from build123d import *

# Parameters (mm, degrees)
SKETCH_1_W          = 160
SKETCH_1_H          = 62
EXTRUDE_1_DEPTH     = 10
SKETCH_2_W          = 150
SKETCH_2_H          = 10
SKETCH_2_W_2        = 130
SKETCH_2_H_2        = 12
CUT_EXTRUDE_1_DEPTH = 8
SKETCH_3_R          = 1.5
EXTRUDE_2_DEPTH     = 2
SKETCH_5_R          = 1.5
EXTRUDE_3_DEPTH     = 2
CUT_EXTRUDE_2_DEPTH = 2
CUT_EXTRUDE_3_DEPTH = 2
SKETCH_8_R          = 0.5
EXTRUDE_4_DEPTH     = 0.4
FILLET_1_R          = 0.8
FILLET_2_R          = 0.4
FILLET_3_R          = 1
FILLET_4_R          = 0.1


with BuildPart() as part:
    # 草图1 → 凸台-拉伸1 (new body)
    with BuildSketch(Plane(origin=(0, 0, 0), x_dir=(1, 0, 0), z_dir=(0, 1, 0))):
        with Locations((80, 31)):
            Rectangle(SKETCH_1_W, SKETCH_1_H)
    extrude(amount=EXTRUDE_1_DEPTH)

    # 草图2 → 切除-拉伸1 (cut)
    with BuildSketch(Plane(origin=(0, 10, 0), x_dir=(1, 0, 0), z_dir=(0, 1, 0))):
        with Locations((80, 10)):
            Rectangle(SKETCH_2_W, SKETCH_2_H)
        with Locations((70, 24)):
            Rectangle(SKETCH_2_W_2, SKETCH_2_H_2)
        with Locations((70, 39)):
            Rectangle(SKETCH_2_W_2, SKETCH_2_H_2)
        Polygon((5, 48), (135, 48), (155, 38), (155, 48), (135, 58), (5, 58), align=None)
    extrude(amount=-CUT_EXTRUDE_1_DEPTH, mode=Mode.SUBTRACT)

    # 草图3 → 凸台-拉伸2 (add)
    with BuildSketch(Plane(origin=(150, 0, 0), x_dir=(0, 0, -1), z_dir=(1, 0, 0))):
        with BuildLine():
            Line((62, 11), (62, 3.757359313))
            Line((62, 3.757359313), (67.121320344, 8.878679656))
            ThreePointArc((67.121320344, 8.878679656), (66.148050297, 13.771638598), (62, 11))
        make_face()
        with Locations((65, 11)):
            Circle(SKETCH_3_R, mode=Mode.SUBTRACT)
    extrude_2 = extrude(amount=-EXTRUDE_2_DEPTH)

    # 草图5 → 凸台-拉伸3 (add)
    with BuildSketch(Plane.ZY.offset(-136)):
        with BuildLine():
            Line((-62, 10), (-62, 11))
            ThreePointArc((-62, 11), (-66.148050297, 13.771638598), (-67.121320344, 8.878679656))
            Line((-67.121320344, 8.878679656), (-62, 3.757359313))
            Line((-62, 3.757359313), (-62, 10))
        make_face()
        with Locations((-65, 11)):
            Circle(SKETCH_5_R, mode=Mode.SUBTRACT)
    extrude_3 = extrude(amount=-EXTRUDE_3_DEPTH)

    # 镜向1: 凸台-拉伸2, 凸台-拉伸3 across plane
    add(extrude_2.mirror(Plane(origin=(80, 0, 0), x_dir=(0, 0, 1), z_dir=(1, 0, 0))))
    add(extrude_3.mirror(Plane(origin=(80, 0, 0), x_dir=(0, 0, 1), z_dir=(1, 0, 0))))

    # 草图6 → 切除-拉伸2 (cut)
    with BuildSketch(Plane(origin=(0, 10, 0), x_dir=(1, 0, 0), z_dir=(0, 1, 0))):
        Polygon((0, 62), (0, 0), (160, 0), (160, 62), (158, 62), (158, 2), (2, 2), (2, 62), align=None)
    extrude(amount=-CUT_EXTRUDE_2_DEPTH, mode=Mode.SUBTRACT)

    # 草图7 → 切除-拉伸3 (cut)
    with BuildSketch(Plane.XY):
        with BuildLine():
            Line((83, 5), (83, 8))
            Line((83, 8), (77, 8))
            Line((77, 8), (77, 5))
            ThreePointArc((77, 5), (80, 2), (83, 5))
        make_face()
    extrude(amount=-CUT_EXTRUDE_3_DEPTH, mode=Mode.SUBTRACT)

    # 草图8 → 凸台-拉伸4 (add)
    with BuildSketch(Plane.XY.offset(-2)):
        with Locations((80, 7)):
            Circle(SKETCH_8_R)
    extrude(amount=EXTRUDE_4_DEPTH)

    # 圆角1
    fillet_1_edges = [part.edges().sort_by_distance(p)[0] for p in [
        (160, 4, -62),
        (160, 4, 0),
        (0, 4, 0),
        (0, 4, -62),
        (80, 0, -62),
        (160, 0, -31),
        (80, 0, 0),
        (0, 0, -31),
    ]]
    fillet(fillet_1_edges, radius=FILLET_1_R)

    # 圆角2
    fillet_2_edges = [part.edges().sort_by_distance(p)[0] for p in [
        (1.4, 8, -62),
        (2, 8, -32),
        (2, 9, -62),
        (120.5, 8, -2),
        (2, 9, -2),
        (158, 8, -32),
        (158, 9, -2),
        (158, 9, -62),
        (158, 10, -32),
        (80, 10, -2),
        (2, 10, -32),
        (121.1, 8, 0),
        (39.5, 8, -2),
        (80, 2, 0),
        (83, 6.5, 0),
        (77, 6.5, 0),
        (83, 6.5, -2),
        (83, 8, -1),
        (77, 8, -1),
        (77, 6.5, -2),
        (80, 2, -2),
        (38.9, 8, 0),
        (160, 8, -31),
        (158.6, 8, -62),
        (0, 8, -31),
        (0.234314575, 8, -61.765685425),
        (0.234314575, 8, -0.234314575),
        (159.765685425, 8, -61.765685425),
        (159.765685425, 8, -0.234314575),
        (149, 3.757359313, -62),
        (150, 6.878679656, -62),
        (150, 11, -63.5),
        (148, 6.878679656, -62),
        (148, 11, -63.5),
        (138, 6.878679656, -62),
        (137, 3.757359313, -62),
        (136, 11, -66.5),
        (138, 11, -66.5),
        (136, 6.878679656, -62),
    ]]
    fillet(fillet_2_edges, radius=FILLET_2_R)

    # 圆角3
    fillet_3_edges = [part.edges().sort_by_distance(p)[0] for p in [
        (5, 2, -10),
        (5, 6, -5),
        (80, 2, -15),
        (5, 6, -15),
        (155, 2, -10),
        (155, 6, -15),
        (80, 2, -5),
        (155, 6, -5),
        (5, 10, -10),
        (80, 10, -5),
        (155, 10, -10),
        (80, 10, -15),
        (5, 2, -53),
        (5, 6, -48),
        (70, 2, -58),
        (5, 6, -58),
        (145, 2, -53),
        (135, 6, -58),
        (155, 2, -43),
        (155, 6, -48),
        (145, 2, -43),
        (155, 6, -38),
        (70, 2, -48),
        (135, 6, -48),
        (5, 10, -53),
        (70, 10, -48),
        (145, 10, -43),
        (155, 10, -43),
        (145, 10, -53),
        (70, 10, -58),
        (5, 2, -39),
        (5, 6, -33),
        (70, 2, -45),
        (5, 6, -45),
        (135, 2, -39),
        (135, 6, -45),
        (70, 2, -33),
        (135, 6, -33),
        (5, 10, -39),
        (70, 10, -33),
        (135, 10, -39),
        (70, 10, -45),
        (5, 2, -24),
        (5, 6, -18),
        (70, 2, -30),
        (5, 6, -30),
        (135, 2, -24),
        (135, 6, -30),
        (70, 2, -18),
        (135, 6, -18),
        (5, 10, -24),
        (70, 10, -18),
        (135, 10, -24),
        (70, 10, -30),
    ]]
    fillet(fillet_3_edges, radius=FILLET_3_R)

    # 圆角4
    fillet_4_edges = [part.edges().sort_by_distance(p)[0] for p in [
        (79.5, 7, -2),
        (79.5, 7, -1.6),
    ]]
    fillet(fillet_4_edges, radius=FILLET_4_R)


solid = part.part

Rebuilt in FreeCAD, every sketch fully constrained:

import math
import FreeCAD as App
import Part
import Sketcher
from FreeCAD import Vector
Q = App.Units.Quantity


def edges_at(feature, points):
    """Names of the edges that pass closest to the given points."""
    edges = feature.Shape.Edges
    near = lambda p: min(range(len(edges)), key=lambda i: edges[i].distToShape(Part.Vertex(*p))[0])
    return sorted({f"Edge{near(p) + 1}" for p in points})

doc = App.newDocument("Part")
body = doc.addObject("PartDesign::Body", "Body")

sketch1 = body.newObject("Sketcher::SketchObject", "Sketch")
sketch1.AttachmentSupport = (doc.getObject("XZ_Plane"), [""])
sketch1.MapMode = "FlatFace"
sketch1.addGeometry([
    Part.LineSegment(Vector(0, -62, 0), Vector(0, 0, 0)),
    Part.LineSegment(Vector(0, 0, 0), Vector(160, 0, 0)),
    Part.LineSegment(Vector(160, 0, 0), Vector(160, -62, 0)),
    Part.LineSegment(Vector(160, -62, 0), Vector(0, -62, 0)),
], False)
sketch1.addConstraint([
    Sketcher.Constraint("Coincident", 0, 2, 1, 1),
    Sketcher.Constraint("Coincident", 1, 2, 2, 1),
    Sketcher.Constraint("Coincident", 2, 2, 3, 1),
    Sketcher.Constraint("Coincident", 3, 2, 0, 1),
    Sketcher.Constraint("Vertical", 0),
    Sketcher.Constraint("Horizontal", 1),
    Sketcher.Constraint("Vertical", 2),
    Sketcher.Constraint("Horizontal", 3),
    Sketcher.Constraint("Coincident", 0, 2, -1, 1),
    Sketcher.Constraint("DistanceX", 1, 1, 1, 2, 160.0),
    Sketcher.Constraint("DistanceY", 0, 1, 0, 2, 62.0),
])
pad1 = body.newObject("PartDesign::Pad", "Pad")
pad1.Profile = sketch1
pad1.Length = 10
pad1.Reversed = True

sketch2 = body.newObject("Sketcher::SketchObject", "Sketch001")
sketch2.AttachmentSupport = (doc.getObject("XZ_Plane"), [""])
sketch2.MapMode = "FlatFace"
sketch2.AttachmentOffset = App.Placement(Vector(0, 0, -10), App.Rotation())
sketch2.addGeometry([
    Part.LineSegment(Vector(5, -15, 0), Vector(5, -5, 0)),
    Part.LineSegment(Vector(5, -5, 0), Vector(155, -5, 0)),
    Part.LineSegment(Vector(155, -5, 0), Vector(155, -15, 0)),
    Part.LineSegment(Vector(155, -15, 0), Vector(5, -15, 0)),
    Part.LineSegment(Vector(5, -30, 0), Vector(5, -18, 0)),
    Part.LineSegment(Vector(5, -18, 0), Vector(135, -18, 0)),
    Part.LineSegment(Vector(135, -18, 0), Vector(135, -30, 0)),
    Part.LineSegment(Vector(135, -30, 0), Vector(5, -30, 0)),
    Part.LineSegment(Vector(5, -45, 0), Vector(5, -33, 0)),
    Part.LineSegment(Vector(5, -33, 0), Vector(135, -33, 0)),
    Part.LineSegment(Vector(135, -33, 0), Vector(135, -45, 0)),
    Part.LineSegment(Vector(135, -45, 0), Vector(5, -45, 0)),
    Part.LineSegment(Vector(5, -48, 0), Vector(135, -48, 0)),
    Part.LineSegment(Vector(135, -48, 0), Vector(155, -38, 0)),
    Part.LineSegment(Vector(155, -38, 0), Vector(155, -48, 0)),
    Part.LineSegment(Vector(155, -48, 0), Vector(135, -58, 0)),
    Part.LineSegment(Vector(135, -58, 0), Vector(5, -58, 0)),
    Part.LineSegment(Vector(5, -58, 0), Vector(5, -48, 0)),
], False)
sketch2.addConstraint([
    Sketcher.Constraint("Coincident", 0, 2, 1, 1),
    Sketcher.Constraint("Coincident", 1, 2, 2, 1),
    Sketcher.Constraint("Coincident", 2, 2, 3, 1),
    Sketcher.Constraint("Coincident", 3, 2, 0, 1),
    Sketcher.Constraint("Coincident", 4, 2, 5, 1),
    Sketcher.Constraint("Coincident", 5, 2, 6, 1),
    Sketcher.Constraint("Coincident", 6, 2, 7, 1),
    Sketcher.Constraint("Coincident", 7, 2, 4, 1),
    Sketcher.Constraint("Coincident", 8, 2, 9, 1),
    Sketcher.Constraint("Coincident", 9, 2, 10, 1),
    Sketcher.Constraint("Coincident", 10, 2, 11, 1),
    Sketcher.Constraint("Coincident", 11, 2, 8, 1),
    Sketcher.Constraint("Coincident", 12, 2, 13, 1),
    Sketcher.Constraint("Coincident", 13, 2, 14, 1),
    Sketcher.Constraint("Coincident", 14, 2, 15, 1),
    Sketcher.Constraint("Coincident", 15, 2, 16, 1),
    Sketcher.Constraint("Coincident", 16, 2, 17, 1),
    Sketcher.Constraint("Coincident", 17, 2, 12, 1),
    Sketcher.Constraint("Vertical", 0),
    Sketcher.Constraint("Horizontal", 1),
    Sketcher.Constraint("Vertical", 2),
    Sketcher.Constraint("Horizontal", 3),
    Sketcher.Constraint("Vertical", 4),
    Sketcher.Constraint("Horizontal", 5),
    Sketcher.Constraint("Vertical", 6),
    Sketcher.Constraint("Horizontal", 7),
    Sketcher.Constraint("Vertical", 8),
    Sketcher.Constraint("Horizontal", 9),
    Sketcher.Constraint("Vertical", 10),
    Sketcher.Constraint("Horizontal", 11),
    Sketcher.Constraint("Horizontal", 12),
    Sketcher.Constraint("Vertical", 14),
    Sketcher.Constraint("Horizontal", 16),
    Sketcher.Constraint("Vertical", 17),
    Sketcher.Constraint("Parallel", 13, 15),
    Sketcher.Constraint("Horizontal", 12, 2, 14, 2),
    Sketcher.Constraint("Vertical", 3, 2, 4, 2),
    Sketcher.Constraint("Vertical", 7, 2, 8, 2),
    Sketcher.Constraint("Vertical", 6, 2, 9, 2),
    Sketcher.Constraint("Vertical", 10, 2, 12, 2),
    Sketcher.Constraint("Vertical", 2, 2, 13, 2),
    Sketcher.Constraint("Vertical", 12, 2, 15, 2),
    Sketcher.Constraint("Vertical", 11, 2, 16, 2),
    Sketcher.Constraint("Equal", 6, 8),
    Sketcher.Constraint("Equal", 2, 14),
    Sketcher.Constraint("DistanceX", 1, 1, 1, 2, 150.0),
    Sketcher.Constraint("DistanceX", 5, 1, 5, 2, 130.0),
    Sketcher.Constraint("DistanceY", 0, 1, 0, 2, 10.0),
    Sketcher.Constraint("DistanceY", 4, 1, 4, 2, 12.0),
    Sketcher.Constraint("DistanceX", -1, 1, 0, 2, 5.0),
    Sketcher.Constraint("DistanceY", 0, 2, -1, 1, 5.0),
    Sketcher.Constraint("DistanceY", 4, 2, -1, 1, 18.0),
    Sketcher.Constraint("DistanceY", 8, 2, -1, 1, 33.0),
    Sketcher.Constraint("DistanceY", 12, 2, -1, 1, 48.0),
])
pocket1 = body.newObject("PartDesign::Pocket", "Pocket")
pocket1.Profile = sketch2
pocket1.Length = 8
pocket1.Reversed = True

sketch3 = body.newObject("Sketcher::SketchObject", "Sketch002")
sketch3.AttachmentSupport = (doc.getObject("YZ_Plane"), [""])
sketch3.MapMode = "FlatFace"
sketch3.AttachmentOffset = App.Placement(Vector(0, 0, 150), App.Rotation())
sketch3.addGeometry([
    Part.LineSegment(Vector(11, -62, 0), Vector(3.8, -62, 0)),
    Part.LineSegment(Vector(3.8, -62, 0), Vector(8.9, -67.1, 0)),
    Part.ArcOfCircle(Part.Circle(Vector(11, -65, 0), Vector(0, 0, 1), 3), math.radians(-135), math.radians(90)),
    Part.Circle(Vector(11, -65, 0), Vector(0, 0, 1), 1.5),
], False)
sketch3.addConstraint([
    Sketcher.Constraint("Coincident", 0, 2, 1, 1),
    Sketcher.Constraint("Tangent", 1, 2, 2, 1),
    Sketcher.Constraint("Tangent", 2, 2, 0, 1),
    Sketcher.Constraint("Horizontal", 0),
    Sketcher.Constraint("Coincident", 3, 3, 2, 3),
    Sketcher.Constraint("Diameter", 3, 3.0),
    Sketcher.Constraint("Radius", 2, 3.0),
    Sketcher.Constraint("Angle", 1, Q("-45 deg")),
    Sketcher.Constraint("DistanceX", -1, 1, 2, 3, 11.0),
    Sketcher.Constraint("DistanceY", 2, 3, -1, 1, 65.0),
])
pad2 = body.newObject("PartDesign::Pad", "Pad001")
pad2.Profile = sketch3
pad2.Length = 2
pad2.Reversed = True

sketch4 = body.newObject("Sketcher::SketchObject", "Sketch003")
sketch4.AttachmentSupport = (doc.getObject("YZ_Plane"), [""])
sketch4.MapMode = "FlatFace"
sketch4.AttachmentOffset = App.Placement(Vector(0, 0, 136), App.Rotation())
sketch4.addGeometry([
    Part.ArcOfCircle(Part.Circle(Vector(11, -65, 0), Vector(0, 0, 1), 3), math.radians(-135), math.radians(90)),
    Part.LineSegment(Vector(8.9, -67.1, 0), Vector(3.8, -62, 0)),
    Part.LineSegment(Vector(3.8, -62, 0), Vector(11, -62, 0)),
    Part.Circle(Vector(11, -65, 0), Vector(0, 0, 1), 1.5),
], False)
sketch4.addConstraint([
    Sketcher.Constraint("Tangent", 0, 1, 1, 1),
    Sketcher.Constraint("Coincident", 1, 2, 2, 1),
    Sketcher.Constraint("Tangent", 2, 2, 0, 2),
    Sketcher.Constraint("Horizontal", 2),
    Sketcher.Constraint("Coincident", 3, 3, 0, 3),
    Sketcher.Constraint("Diameter", 3, 3.0),
    Sketcher.Constraint("Radius", 0, 3.0),
    Sketcher.Constraint("Angle", 1, Q("135 deg")),
    Sketcher.Constraint("DistanceX", -1, 1, 0, 3, 11.0),
    Sketcher.Constraint("DistanceY", 0, 3, -1, 1, 65.0),
])
pad3 = body.newObject("PartDesign::Pad", "Pad002")
pad3.Profile = sketch4
pad3.Length = 2
doc.recompute()

datumplane = body.newObject("PartDesign::Plane", "DatumPlane")
datumplane.AttachmentSupport = (doc.getObject("YZ_Plane"), [""])
datumplane.MapMode = "FlatFace"
datumplane.AttachmentOffset = App.Placement(Vector(0, 0, 80), App.Rotation())
mirrored = body.newObject("PartDesign::Mirrored", "Mirrored")
mirrored.Originals = [pad2, pad3]
mirrored.MirrorPlane = (datumplane, [""])
body.Tip = mirrored

sketch5 = body.newObject("Sketcher::SketchObject", "Sketch004")
sketch5.AttachmentSupport = (doc.getObject("XZ_Plane"), [""])
sketch5.MapMode = "FlatFace"
sketch5.AttachmentOffset = App.Placement(Vector(0, 0, -10), App.Rotation())
sketch5.addGeometry([
    Part.LineSegment(Vector(0, -62, 0), Vector(0, 0, 0)),
    Part.LineSegment(Vector(0, 0, 0), Vector(160, 0, 0)),
    Part.LineSegment(Vector(160, 0, 0), Vector(160, -62, 0)),
    Part.LineSegment(Vector(160, -62, 0), Vector(158, -62, 0)),
    Part.LineSegment(Vector(158, -62, 0), Vector(158, -2, 0)),
    Part.LineSegment(Vector(158, -2, 0), Vector(2, -2, 0)),
    Part.LineSegment(Vector(2, -2, 0), Vector(2, -62, 0)),
    Part.LineSegment(Vector(2, -62, 0), Vector(0, -62, 0)),
], False)
sketch5.addConstraint([
    Sketcher.Constraint("Coincident", 0, 2, 1, 1),
    Sketcher.Constraint("Coincident", 1, 2, 2, 1),
    Sketcher.Constraint("Coincident", 2, 2, 3, 1),
    Sketcher.Constraint("Coincident", 3, 2, 4, 1),
    Sketcher.Constraint("Coincident", 4, 2, 5, 1),
    Sketcher.Constraint("Coincident", 5, 2, 6, 1),
    Sketcher.Constraint("Coincident", 6, 2, 7, 1),
    Sketcher.Constraint("Coincident", 7, 2, 0, 1),
    Sketcher.Constraint("Vertical", 0),
    Sketcher.Constraint("Horizontal", 1),
    Sketcher.Constraint("Vertical", 2),
    Sketcher.Constraint("Horizontal", 3),
    Sketcher.Constraint("Vertical", 4),
    Sketcher.Constraint("Horizontal", 5),
    Sketcher.Constraint("Vertical", 6),
    Sketcher.Constraint("Horizontal", 7),
    Sketcher.Constraint("Coincident", 0, 2, -1, 1),
    Sketcher.Constraint("Horizontal", 3, 2, 6, 2),
    Sketcher.Constraint("Equal", 3, 7),
    Sketcher.Constraint("DistanceX", 1, 1, 1, 2, 160.0),
    Sketcher.Constraint("DistanceX", 3, 2, 3, 1, 2.0),
    Sketcher.Constraint("DistanceY", 0, 1, 0, 2, 62.0),
    Sketcher.Constraint("DistanceY", 4, 1, 4, 2, 60.0),
])
pocket2 = body.newObject("PartDesign::Pocket", "Pocket001")
pocket2.Profile = sketch5
pocket2.Length = 2
pocket2.Reversed = True

sketch6 = body.newObject("Sketcher::SketchObject", "Sketch005")
sketch6.AttachmentSupport = (doc.getObject("XY_Plane"), [""])
sketch6.MapMode = "FlatFace"
sketch6.addGeometry([
    Part.LineSegment(Vector(83, 5, 0), Vector(83, 8, 0)),
    Part.LineSegment(Vector(83, 8, 0), Vector(77, 8, 0)),
    Part.LineSegment(Vector(77, 8, 0), Vector(77, 5, 0)),
    Part.ArcOfCircle(Part.Circle(Vector(80, 5, 0), Vector(0, 0, 1), 3), math.radians(180), math.radians(360)),
], False)
sketch6.addConstraint([
    Sketcher.Constraint("Coincident", 0, 2, 1, 1),
    Sketcher.Constraint("Coincident", 1, 2, 2, 1),
    Sketcher.Constraint("Tangent", 2, 2, 3, 1),
    Sketcher.Constraint("Tangent", 3, 2, 0, 1),
    Sketcher.Constraint("Vertical", 0),
    Sketcher.Constraint("Horizontal", 1),
    Sketcher.Constraint("Vertical", 2),
    Sketcher.Constraint("Radius", 3, 3.0),
    Sketcher.Constraint("DistanceY", 0, 1, 0, 2, 3.0),
    Sketcher.Constraint("DistanceX", -1, 1, 3, 3, 80.0),
    Sketcher.Constraint("DistanceY", -1, 1, 3, 3, 5.0),
])
pocket3 = body.newObject("PartDesign::Pocket", "Pocket002")
pocket3.Profile = sketch6
pocket3.Length = 2

sketch7 = body.newObject("Sketcher::SketchObject", "Sketch006")
sketch7.AttachmentSupport = (doc.getObject("XY_Plane"), [""])
sketch7.MapMode = "FlatFace"
sketch7.AttachmentOffset = App.Placement(Vector(0, 0, -2), App.Rotation())
sketch7.addGeometry(Part.Circle(Vector(80, 7, 0), Vector(0, 0, 1), 0.5), False)
sketch7.addConstraint([
    Sketcher.Constraint("Diameter", 0, 1.0),
    Sketcher.Constraint("DistanceX", -1, 1, 0, 3, 80.0),
    Sketcher.Constraint("DistanceY", -1, 1, 0, 3, 7.0),
])
pad4 = body.newObject("PartDesign::Pad", "Pad003")
pad4.Profile = sketch7
pad4.Length = 0.4
doc.recompute()

fillet = body.newObject("PartDesign::Fillet", "Fillet")
fillet.Base = (pad4, edges_at(pad4, [
    (160, 4, -62),
    (160, 4, 0),
    (0, 4, 0),
    (0, 4, -62),
    (80, 0, -62),
    (160, 0, -31),
    (80, 0, 0),
    (0, 0, -31),
]))
fillet.Radius = 0.8
doc.recompute()

fillet2 = body.newObject("PartDesign::Fillet", "Fillet001")
fillet2.Base = (fillet, edges_at(fillet, [
    (1.4, 8, -62),
    (2, 8, -32),
    (2, 9, -62),
    (120.5, 8, -2),
    (2, 9, -2),
    (158, 8, -32),
    (158, 9, -2),
    (158, 9, -62),
    (158, 10, -32),
    (80, 10, -2),
    (2, 10, -32),
    (121.1, 8, 0),
    (39.5, 8, -2),
    (80, 2, 0),
    (83, 6.5, 0),
    (77, 6.5, 0),
    (83, 6.5, -2),
    (83, 8, -1),
    (77, 8, -1),
    (77, 6.5, -2),
    (80, 2, -2),
    (38.9, 8, 0),
    (160, 8, -31),
    (158.6, 8, -62),
    (0, 8, -31),
    (0.234, 8, -61.766),
    (0.234, 8, -0.234),
    (159.766, 8, -61.766),
    (159.766, 8, -0.234),
    (149, 3.757, -62),
    (150, 6.879, -62),
    (150, 11, -63.5),
    (148, 6.879, -62),
    (148, 11, -63.5),
    (138, 6.879, -62),
    (137, 3.757, -62),
    (136, 11, -66.5),
    (138, 11, -66.5),
    (136, 6.879, -62),
]))
fillet2.Radius = 0.4
doc.recompute()

fillet3 = body.newObject("PartDesign::Fillet", "Fillet002")
fillet3.Base = (fillet2, edges_at(fillet2, [
    (5, 2, -10),
    (5, 6, -5),
    (80, 2, -15),
    (5, 6, -15),
    (155, 2, -10),
    (155, 6, -15),
    (80, 2, -5),
    (155, 6, -5),
    (5, 10, -10),
    (80, 10, -5),
    (155, 10, -10),
    (80, 10, -15),
    (5, 2, -53),
    (5, 6, -48),
    (70, 2, -58),
    (5, 6, -58),
    (145, 2, -53),
    (135, 6, -58),
    (155, 2, -43),
    (155, 6, -48),
    (145, 2, -43),
    (155, 6, -38),
    (70, 2, -48),
    (135, 6, -48),
    (5, 10, -53),
    (70, 10, -48),
    (145, 10, -43),
    (155, 10, -43),
    (145, 10, -53),
    (70, 10, -58),
    (5, 2, -39),
    (5, 6, -33),
    (70, 2, -45),
    (5, 6, -45),
    (135, 2, -39),
    (135, 6, -45),
    (70, 2, -33),
    (135, 6, -33),
    (5, 10, -39),
    (70, 10, -33),
    (135, 10, -39),
    (70, 10, -45),
    (5, 2, -24),
    (5, 6, -18),
    (70, 2, -30),
    (5, 6, -30),
    (135, 2, -24),
    (135, 6, -30),
    (70, 2, -18),
    (135, 6, -18),
    (5, 10, -24),
    (70, 10, -18),
    (135, 10, -24),
    (70, 10, -30),
]))
fillet3.Radius = 1
doc.recompute()

fillet4 = body.newObject("PartDesign::Fillet", "Fillet003")
fillet4.Base = (fillet3, edges_at(fillet3, [(79.5, 7, -2), (79.5, 7, -1.6)]))
fillet4.Radius = 0.1

doc.recompute()
